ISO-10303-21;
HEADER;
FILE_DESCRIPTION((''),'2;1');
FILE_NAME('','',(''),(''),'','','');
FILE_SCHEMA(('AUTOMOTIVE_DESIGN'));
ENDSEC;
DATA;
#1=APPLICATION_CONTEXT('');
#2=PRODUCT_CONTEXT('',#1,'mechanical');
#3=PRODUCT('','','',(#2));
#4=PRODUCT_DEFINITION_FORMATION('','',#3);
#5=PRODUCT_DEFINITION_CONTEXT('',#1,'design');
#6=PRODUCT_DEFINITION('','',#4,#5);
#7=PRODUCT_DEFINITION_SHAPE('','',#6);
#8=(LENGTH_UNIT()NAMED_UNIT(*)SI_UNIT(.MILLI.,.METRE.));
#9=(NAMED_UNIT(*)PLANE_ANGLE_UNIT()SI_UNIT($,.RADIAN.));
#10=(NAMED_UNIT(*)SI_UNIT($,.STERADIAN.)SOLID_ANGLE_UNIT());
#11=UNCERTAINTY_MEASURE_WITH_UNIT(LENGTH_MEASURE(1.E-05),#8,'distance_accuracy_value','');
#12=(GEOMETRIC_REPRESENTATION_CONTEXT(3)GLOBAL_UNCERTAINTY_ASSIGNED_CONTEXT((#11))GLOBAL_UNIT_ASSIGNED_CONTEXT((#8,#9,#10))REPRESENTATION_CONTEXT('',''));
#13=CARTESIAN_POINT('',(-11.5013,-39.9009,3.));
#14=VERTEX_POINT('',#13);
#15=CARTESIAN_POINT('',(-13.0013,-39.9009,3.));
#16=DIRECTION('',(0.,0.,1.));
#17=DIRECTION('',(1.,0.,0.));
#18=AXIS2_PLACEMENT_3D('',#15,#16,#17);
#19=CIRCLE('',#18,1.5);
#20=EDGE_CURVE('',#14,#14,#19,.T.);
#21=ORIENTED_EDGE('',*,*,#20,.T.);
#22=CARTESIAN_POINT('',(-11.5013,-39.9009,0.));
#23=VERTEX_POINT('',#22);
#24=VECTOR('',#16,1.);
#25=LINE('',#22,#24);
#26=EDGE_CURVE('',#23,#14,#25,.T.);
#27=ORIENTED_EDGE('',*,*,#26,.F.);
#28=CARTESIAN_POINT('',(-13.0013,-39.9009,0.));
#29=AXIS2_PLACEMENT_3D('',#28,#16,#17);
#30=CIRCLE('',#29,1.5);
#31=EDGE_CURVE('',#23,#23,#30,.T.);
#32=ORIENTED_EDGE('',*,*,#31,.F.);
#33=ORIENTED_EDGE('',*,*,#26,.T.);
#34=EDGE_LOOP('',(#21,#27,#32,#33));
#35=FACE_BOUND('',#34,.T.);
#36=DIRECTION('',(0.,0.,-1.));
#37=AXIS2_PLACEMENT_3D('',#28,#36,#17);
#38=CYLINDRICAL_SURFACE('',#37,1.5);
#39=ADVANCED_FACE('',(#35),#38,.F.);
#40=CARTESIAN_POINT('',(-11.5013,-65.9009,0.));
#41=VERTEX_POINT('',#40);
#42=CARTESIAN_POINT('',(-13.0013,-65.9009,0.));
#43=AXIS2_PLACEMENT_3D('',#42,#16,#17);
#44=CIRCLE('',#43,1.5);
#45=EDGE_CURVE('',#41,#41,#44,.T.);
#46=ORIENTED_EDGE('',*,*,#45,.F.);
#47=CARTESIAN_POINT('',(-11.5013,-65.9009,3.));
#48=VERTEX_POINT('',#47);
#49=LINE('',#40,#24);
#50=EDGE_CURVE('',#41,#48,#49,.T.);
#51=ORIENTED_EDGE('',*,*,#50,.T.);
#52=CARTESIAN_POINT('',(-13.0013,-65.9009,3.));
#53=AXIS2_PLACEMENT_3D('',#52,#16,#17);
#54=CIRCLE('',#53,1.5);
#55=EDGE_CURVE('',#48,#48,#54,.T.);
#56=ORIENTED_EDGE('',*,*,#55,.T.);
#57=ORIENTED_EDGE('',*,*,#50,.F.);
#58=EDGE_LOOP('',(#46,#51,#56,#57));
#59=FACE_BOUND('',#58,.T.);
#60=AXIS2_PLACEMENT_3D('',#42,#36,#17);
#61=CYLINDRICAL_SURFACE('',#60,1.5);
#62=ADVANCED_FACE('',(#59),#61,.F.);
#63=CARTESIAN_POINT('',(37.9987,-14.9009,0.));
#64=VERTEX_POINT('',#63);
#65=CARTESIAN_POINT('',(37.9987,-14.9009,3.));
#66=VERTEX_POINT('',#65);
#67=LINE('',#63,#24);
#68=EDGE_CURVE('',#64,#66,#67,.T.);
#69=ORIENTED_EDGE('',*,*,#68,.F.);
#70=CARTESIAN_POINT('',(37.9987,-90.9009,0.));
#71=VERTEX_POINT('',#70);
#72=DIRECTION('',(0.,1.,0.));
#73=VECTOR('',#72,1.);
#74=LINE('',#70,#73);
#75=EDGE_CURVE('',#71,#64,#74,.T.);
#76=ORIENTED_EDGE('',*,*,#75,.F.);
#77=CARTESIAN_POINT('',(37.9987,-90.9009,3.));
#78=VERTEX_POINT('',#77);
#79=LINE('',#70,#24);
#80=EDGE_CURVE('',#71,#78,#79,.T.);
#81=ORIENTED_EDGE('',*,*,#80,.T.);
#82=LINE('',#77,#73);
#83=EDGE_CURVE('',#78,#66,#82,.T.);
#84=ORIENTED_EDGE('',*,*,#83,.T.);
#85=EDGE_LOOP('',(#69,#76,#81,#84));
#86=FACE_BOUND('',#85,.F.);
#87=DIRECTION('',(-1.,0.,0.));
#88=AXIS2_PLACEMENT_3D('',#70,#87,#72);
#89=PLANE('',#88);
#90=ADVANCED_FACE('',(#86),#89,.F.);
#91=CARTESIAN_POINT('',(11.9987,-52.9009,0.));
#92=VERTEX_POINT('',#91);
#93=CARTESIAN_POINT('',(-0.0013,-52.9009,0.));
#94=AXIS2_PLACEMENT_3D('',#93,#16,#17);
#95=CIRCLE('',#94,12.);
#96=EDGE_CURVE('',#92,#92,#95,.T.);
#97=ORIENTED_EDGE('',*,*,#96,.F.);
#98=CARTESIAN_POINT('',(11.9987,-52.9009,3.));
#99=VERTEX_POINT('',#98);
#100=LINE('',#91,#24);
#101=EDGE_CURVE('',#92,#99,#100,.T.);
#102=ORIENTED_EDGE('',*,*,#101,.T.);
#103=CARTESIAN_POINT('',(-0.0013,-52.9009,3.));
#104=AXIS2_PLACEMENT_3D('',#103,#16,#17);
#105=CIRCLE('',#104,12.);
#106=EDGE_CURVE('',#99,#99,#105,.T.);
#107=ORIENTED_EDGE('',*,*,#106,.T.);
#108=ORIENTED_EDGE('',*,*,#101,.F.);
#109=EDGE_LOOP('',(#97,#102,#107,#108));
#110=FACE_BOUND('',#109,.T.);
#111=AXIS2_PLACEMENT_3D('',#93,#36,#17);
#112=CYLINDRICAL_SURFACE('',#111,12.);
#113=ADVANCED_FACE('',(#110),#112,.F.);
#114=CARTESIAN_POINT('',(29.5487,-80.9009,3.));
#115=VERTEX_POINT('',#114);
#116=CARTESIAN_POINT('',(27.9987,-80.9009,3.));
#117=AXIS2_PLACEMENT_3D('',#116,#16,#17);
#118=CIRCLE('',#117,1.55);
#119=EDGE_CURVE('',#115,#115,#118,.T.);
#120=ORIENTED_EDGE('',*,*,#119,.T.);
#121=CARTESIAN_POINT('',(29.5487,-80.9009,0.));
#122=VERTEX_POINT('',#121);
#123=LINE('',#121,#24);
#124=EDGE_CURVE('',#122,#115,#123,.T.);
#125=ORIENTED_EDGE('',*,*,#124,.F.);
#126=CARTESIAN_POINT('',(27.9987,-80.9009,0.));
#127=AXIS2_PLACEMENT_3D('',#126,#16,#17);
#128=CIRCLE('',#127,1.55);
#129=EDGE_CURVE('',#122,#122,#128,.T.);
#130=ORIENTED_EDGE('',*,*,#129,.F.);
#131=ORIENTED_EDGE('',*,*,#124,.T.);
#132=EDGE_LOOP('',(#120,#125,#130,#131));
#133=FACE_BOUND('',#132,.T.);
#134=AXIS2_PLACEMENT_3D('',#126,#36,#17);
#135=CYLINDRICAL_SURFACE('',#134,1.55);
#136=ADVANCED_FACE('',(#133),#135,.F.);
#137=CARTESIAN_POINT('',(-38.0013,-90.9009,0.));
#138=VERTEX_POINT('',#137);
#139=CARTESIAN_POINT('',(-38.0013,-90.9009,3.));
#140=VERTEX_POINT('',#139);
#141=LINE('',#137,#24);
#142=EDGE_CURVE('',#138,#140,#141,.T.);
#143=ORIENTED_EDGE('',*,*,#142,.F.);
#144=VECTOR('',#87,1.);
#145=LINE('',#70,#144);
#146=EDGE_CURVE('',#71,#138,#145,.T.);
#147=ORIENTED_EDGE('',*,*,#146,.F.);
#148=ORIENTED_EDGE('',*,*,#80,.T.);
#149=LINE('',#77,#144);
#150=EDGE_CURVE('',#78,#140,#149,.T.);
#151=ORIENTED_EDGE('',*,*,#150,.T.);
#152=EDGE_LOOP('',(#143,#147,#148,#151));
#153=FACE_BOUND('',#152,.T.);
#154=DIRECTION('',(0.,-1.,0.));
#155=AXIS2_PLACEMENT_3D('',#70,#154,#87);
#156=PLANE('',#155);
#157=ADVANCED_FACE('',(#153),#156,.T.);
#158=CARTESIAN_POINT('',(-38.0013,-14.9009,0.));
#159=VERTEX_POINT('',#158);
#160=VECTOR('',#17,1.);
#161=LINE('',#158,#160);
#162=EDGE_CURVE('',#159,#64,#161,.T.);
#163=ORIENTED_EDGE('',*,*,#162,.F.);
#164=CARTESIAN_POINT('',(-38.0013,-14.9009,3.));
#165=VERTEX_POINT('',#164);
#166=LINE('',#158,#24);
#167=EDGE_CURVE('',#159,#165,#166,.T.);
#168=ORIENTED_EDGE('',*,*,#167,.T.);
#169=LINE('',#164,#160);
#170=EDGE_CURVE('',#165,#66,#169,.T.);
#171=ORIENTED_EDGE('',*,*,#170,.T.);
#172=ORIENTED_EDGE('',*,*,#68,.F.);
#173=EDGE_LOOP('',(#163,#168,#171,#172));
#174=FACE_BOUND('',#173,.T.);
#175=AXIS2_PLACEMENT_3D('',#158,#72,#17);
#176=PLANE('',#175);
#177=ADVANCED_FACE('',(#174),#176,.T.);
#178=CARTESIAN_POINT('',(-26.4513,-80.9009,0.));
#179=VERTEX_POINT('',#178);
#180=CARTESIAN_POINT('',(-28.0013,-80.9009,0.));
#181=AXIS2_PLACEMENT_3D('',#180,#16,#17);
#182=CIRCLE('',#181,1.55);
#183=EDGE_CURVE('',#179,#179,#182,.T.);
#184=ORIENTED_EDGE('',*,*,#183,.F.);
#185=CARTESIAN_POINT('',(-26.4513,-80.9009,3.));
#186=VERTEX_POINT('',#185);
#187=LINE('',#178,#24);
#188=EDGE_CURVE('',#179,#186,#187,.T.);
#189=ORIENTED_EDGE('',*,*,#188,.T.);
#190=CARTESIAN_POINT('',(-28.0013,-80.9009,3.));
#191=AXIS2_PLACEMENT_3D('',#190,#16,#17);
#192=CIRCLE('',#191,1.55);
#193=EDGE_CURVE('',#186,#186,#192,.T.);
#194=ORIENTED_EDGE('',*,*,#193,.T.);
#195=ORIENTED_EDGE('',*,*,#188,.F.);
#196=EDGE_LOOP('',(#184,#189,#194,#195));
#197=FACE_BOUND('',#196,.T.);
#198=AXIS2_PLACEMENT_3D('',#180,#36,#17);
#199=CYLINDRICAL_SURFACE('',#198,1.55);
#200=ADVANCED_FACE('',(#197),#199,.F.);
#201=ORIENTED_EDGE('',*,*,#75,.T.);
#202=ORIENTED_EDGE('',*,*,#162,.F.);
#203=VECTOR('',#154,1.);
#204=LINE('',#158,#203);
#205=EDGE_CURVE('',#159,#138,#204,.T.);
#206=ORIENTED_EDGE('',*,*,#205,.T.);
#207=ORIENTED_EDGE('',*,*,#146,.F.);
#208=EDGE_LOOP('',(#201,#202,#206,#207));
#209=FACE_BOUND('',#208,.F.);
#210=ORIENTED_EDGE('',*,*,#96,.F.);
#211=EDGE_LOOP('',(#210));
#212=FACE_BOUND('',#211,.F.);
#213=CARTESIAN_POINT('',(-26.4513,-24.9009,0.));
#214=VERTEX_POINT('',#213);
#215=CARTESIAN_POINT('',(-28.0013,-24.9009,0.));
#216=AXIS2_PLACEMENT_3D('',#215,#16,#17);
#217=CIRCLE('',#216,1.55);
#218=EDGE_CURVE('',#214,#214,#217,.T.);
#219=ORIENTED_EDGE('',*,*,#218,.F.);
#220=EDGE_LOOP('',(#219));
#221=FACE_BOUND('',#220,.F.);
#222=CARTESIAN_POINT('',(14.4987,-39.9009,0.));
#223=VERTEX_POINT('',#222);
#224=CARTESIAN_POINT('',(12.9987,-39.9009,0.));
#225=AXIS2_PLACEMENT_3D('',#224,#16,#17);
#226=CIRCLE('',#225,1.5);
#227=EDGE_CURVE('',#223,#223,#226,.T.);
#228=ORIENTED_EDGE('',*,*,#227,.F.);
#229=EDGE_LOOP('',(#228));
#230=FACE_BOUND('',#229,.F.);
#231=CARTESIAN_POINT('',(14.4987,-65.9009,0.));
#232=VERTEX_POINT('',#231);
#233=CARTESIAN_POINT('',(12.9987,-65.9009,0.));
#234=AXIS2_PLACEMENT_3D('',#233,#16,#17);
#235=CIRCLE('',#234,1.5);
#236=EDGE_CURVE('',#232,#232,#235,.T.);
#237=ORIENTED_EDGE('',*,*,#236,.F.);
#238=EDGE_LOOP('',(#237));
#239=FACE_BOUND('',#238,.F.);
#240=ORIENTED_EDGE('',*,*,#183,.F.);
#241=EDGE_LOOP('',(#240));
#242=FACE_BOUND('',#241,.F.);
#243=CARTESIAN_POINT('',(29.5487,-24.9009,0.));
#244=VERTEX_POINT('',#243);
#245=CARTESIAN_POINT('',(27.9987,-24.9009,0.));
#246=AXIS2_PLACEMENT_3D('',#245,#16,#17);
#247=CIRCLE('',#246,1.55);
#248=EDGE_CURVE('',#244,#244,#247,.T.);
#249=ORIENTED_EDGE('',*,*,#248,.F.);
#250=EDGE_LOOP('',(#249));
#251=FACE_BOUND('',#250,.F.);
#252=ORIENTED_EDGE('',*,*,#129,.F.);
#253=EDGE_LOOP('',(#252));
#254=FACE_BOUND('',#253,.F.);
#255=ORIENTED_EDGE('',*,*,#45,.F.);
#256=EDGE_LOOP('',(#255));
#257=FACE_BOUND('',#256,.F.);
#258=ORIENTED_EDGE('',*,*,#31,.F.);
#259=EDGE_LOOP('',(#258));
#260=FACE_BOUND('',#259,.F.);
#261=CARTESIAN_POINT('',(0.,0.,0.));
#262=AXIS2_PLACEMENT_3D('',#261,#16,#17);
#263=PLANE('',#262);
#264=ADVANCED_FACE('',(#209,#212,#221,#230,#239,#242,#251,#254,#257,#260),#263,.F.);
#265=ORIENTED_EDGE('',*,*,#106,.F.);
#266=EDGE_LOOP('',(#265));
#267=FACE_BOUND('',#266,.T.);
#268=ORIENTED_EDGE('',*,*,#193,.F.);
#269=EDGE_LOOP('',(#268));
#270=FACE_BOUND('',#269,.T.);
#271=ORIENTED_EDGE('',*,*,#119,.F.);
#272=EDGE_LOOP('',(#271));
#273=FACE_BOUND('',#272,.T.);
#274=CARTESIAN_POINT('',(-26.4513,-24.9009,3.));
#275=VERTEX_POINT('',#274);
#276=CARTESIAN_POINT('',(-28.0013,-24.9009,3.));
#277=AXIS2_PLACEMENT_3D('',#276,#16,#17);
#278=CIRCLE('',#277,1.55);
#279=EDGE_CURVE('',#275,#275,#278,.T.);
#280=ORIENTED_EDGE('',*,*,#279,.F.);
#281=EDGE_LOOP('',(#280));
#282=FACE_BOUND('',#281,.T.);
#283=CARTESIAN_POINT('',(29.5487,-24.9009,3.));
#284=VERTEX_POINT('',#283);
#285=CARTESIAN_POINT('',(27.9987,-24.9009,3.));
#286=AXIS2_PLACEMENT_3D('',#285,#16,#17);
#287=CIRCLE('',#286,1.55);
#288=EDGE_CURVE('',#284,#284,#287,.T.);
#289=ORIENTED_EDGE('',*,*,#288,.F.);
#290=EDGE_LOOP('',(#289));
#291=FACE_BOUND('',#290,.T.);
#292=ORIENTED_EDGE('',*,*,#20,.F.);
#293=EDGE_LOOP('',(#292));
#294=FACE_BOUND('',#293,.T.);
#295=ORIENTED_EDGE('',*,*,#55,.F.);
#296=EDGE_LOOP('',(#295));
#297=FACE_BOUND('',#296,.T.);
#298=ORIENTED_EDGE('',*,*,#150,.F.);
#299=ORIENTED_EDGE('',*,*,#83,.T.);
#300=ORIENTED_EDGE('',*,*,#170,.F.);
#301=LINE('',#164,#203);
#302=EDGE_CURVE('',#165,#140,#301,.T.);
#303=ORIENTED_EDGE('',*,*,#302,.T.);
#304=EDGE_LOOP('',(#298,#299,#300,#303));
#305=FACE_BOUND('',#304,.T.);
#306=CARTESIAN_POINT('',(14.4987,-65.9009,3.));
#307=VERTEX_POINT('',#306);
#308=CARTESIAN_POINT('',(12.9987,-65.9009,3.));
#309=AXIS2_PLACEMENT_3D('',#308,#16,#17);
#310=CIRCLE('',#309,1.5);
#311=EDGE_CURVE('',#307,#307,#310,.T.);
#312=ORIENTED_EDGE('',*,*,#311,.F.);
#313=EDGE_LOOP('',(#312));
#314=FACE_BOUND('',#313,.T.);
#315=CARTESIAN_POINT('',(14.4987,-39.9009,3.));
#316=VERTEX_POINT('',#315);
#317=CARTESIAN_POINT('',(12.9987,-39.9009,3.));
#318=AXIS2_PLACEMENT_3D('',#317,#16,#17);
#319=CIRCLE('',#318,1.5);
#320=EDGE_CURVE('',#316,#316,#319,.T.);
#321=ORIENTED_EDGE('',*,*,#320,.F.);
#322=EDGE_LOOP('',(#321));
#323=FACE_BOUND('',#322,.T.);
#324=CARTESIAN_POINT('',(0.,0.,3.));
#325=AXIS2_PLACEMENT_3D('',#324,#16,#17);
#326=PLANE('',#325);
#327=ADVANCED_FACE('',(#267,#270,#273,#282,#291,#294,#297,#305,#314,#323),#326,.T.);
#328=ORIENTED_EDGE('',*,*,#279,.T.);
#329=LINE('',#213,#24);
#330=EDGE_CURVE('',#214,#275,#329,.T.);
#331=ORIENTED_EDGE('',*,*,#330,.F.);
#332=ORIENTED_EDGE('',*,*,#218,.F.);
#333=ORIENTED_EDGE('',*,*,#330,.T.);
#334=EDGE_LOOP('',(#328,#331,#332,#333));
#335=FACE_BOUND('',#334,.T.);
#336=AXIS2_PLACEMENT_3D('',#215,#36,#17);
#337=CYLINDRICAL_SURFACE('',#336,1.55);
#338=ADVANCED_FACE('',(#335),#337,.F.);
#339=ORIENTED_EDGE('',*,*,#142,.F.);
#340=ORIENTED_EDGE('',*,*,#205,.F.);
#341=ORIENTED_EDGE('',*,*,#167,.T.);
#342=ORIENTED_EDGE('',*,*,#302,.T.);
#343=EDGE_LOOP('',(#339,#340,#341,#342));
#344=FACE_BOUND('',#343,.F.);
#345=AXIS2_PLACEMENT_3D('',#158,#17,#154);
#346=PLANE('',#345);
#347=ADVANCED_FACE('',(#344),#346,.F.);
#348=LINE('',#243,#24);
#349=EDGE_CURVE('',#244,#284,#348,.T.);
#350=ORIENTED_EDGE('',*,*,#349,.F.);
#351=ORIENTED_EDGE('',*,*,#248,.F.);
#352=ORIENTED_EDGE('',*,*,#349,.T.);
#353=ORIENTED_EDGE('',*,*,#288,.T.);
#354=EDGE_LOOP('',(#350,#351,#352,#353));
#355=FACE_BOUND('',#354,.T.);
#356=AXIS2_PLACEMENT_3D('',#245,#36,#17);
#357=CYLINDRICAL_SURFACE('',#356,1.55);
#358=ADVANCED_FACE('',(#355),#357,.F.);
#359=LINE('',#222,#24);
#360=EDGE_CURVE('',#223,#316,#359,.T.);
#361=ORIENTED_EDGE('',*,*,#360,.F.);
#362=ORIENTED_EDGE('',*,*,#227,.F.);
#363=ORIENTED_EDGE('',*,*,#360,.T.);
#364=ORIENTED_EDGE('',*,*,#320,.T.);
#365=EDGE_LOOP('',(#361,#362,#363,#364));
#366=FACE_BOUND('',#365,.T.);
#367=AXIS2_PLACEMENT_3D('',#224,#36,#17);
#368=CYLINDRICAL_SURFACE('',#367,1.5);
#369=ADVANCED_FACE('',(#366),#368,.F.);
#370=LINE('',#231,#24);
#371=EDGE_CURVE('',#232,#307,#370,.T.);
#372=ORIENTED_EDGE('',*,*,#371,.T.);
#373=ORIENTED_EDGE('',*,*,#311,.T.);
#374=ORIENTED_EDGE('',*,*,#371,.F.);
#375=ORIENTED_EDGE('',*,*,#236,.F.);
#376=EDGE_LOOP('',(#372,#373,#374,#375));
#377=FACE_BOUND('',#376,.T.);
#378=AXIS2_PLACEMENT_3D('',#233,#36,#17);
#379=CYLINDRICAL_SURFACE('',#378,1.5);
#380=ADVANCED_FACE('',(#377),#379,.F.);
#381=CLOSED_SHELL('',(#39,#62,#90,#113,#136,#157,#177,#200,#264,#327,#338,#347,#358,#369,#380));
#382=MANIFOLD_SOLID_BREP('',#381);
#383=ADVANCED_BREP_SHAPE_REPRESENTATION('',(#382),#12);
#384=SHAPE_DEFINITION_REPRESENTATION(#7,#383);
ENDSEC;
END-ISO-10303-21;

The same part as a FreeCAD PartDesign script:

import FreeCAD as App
import Part
import Sketcher
from FreeCAD import Vector
Q = App.Units.Quantity

doc = App.newDocument("Part")
body = doc.addObject("PartDesign::Body", "Body")

# Sketch on XY plane
sketch1 = body.newObject("Sketcher::SketchObject", "Sketch")
sketch1.AttachmentSupport = (doc.getObject("XY_Plane"), [""])
sketch1.MapMode = "FlatFace"
sketch1.addGeometry(Part.LineSegment(Vector(-38.0013, -90.9009, 0), Vector(37.9987, -90.9009, 0)), False)
sketch1.addGeometry(Part.LineSegment(Vector(37.9987, -90.9009, 0), Vector(37.9987, -14.9009, 0)), False)
sketch1.addGeometry(Part.LineSegment(Vector(37.9987, -14.9009, 0), Vector(-38.0013, -14.9009, 0)), False)
sketch1.addGeometry(Part.LineSegment(Vector(-38.0013, -14.9009, 0), Vector(-38.0013, -90.9009, 0)), False)
sketch1.addGeometry(Part.Circle(Vector(-28.0013, -80.9009, 0), Vector(0, 0, 1), 1.55), False)
sketch1.addGeometry(Part.Circle(Vector(-13.0013, -65.9009, 0), Vector(0, 0, 1), 1.5), False)
sketch1.addGeometry(Part.Circle(Vector(27.9987, -80.9009, 0), Vector(0, 0, 1), 1.55), False)
sketch1.addGeometry(Part.Circle(Vector(12.9987, -65.9009, 0), Vector(0, 0, 1), 1.5), False)
sketch1.addGeometry(Part.Circle(Vector(-0.0013, -52.9009, 0), Vector(0, 0, 1), 12), False)
sketch1.addGeometry(Part.Circle(Vector(-13.0013, -39.9009, 0), Vector(0, 0, 1), 1.5), False)
sketch1.addGeometry(Part.Circle(Vector(-28.0013, -24.9009, 0), Vector(0, 0, 1), 1.55), False)
sketch1.addGeometry(Part.Circle(Vector(12.9987, -39.9009, 0), Vector(0, 0, 1), 1.5), False)
sketch1.addGeometry(Part.Circle(Vector(27.9987, -24.9009, 0), Vector(0, 0, 1), 1.55), False)
sketch1.addConstraint(Sketcher.Constraint("Coincident", 0, 2, 1, 1))
sketch1.addConstraint(Sketcher.Constraint("Coincident", 1, 2, 2, 1))
sketch1.addConstraint(Sketcher.Constraint("Coincident", 2, 2, 3, 1))
sketch1.addConstraint(Sketcher.Constraint("Coincident", 3, 2, 0, 1))
sketch1.addConstraint(Sketcher.Constraint("Horizontal", 0))
sketch1.addConstraint(Sketcher.Constraint("Vertical", 1))
sketch1.addConstraint(Sketcher.Constraint("Horizontal", 2))
sketch1.addConstraint(Sketcher.Constraint("Vertical", 3))
sketch1.addConstraint(Sketcher.Constraint("Equal", 4, 6))
sketch1.addConstraint(Sketcher.Constraint("Equal", 5, 7))
sketch1.addConstraint(Sketcher.Constraint("Equal", 7, 9))
sketch1.addConstraint(Sketcher.Constraint("Equal", 6, 10))
sketch1.addConstraint(Sketcher.Constraint("Equal", 9, 11))
sketch1.addConstraint(Sketcher.Constraint("Equal", 10, 12))
sketch1.addConstraint(Sketcher.Constraint("Horizontal", 4, 3, 6, 3))
sketch1.addConstraint(Sketcher.Constraint("Horizontal", 5, 3, 7, 3))
sketch1.addConstraint(Sketcher.Constraint("Horizontal", 9, 3, 11, 3))
sketch1.addConstraint(Sketcher.Constraint("Horizontal", 10, 3, 12, 3))
sketch1.addConstraint(Sketcher.Constraint("Vertical", 5, 3, 9, 3))
sketch1.addConstraint(Sketcher.Constraint("Vertical", 4, 3, 10, 3))
sketch1.addConstraint(Sketcher.Constraint("Vertical", 7, 3, 11, 3))
sketch1.addConstraint(Sketcher.Constraint("Vertical", 6, 3, 12, 3))
sketch1.addConstraint(Sketcher.Constraint("Equal", 2, 1))
sketch1.addConstraint(Sketcher.Constraint("Diameter", 8, Q("24 mm")))
sketch1.addConstraint(Sketcher.Constraint("Diameter", 5, Q("3 mm")))
sketch1.addConstraint(Sketcher.Constraint("Diameter", 4, Q("3.1 mm")))
sketch1.addConstraint(Sketcher.Constraint("DistanceX", 0, 1, 0, 2, Q("76 mm")))
sketch1.addConstraint(Sketcher.Constraint("DistanceX", 4, 3, 5, 3, Q("15 mm")))
sketch1.addConstraint(Sketcher.Constraint("DistanceY", 4, 3, 5, 3, Q("15 mm")))
sketch1.addConstraint(Sketcher.Constraint("DistanceX", 5, 3, 6, 3, Q("41 mm")))
sketch1.addConstraint(Sketcher.Constraint("DistanceX", 7, 3, 6, 3, Q("15 mm")))
sketch1.addConstraint(Sketcher.Constraint("DistanceX", 5, 3, 8, 3, Q("13 mm")))
sketch1.addConstraint(Sketcher.Constraint("DistanceY", 5, 3, 8, 3, Q("13 mm")))
sketch1.addConstraint(Sketcher.Constraint("DistanceY", 8, 3, 9, 3, Q("13 mm")))
sketch1.addConstraint(Sketcher.Constraint("DistanceY", 9, 3, 10, 3, Q("15 mm")))
sketch1.addConstraint(Sketcher.Constraint("DistanceX", 6, 3, 0, 2, Q("10 mm")))
sketch1.addConstraint(Sketcher.Constraint("DistanceY", 0, 2, 6, 3, Q("10 mm")))
sketch1.addConstraint(Sketcher.Constraint("DistanceY", 4, 3, -1, 1, Q("80.901 mm")))
sketch1.addConstraint(Sketcher.Constraint("DistanceX", 4, 3, -1, 1, Q("28.0013 mm")))
pad1 = body.newObject("PartDesign::Pad", "Pad")
pad1.Profile = sketch1
pad1.Length = 3

doc.recompute()
